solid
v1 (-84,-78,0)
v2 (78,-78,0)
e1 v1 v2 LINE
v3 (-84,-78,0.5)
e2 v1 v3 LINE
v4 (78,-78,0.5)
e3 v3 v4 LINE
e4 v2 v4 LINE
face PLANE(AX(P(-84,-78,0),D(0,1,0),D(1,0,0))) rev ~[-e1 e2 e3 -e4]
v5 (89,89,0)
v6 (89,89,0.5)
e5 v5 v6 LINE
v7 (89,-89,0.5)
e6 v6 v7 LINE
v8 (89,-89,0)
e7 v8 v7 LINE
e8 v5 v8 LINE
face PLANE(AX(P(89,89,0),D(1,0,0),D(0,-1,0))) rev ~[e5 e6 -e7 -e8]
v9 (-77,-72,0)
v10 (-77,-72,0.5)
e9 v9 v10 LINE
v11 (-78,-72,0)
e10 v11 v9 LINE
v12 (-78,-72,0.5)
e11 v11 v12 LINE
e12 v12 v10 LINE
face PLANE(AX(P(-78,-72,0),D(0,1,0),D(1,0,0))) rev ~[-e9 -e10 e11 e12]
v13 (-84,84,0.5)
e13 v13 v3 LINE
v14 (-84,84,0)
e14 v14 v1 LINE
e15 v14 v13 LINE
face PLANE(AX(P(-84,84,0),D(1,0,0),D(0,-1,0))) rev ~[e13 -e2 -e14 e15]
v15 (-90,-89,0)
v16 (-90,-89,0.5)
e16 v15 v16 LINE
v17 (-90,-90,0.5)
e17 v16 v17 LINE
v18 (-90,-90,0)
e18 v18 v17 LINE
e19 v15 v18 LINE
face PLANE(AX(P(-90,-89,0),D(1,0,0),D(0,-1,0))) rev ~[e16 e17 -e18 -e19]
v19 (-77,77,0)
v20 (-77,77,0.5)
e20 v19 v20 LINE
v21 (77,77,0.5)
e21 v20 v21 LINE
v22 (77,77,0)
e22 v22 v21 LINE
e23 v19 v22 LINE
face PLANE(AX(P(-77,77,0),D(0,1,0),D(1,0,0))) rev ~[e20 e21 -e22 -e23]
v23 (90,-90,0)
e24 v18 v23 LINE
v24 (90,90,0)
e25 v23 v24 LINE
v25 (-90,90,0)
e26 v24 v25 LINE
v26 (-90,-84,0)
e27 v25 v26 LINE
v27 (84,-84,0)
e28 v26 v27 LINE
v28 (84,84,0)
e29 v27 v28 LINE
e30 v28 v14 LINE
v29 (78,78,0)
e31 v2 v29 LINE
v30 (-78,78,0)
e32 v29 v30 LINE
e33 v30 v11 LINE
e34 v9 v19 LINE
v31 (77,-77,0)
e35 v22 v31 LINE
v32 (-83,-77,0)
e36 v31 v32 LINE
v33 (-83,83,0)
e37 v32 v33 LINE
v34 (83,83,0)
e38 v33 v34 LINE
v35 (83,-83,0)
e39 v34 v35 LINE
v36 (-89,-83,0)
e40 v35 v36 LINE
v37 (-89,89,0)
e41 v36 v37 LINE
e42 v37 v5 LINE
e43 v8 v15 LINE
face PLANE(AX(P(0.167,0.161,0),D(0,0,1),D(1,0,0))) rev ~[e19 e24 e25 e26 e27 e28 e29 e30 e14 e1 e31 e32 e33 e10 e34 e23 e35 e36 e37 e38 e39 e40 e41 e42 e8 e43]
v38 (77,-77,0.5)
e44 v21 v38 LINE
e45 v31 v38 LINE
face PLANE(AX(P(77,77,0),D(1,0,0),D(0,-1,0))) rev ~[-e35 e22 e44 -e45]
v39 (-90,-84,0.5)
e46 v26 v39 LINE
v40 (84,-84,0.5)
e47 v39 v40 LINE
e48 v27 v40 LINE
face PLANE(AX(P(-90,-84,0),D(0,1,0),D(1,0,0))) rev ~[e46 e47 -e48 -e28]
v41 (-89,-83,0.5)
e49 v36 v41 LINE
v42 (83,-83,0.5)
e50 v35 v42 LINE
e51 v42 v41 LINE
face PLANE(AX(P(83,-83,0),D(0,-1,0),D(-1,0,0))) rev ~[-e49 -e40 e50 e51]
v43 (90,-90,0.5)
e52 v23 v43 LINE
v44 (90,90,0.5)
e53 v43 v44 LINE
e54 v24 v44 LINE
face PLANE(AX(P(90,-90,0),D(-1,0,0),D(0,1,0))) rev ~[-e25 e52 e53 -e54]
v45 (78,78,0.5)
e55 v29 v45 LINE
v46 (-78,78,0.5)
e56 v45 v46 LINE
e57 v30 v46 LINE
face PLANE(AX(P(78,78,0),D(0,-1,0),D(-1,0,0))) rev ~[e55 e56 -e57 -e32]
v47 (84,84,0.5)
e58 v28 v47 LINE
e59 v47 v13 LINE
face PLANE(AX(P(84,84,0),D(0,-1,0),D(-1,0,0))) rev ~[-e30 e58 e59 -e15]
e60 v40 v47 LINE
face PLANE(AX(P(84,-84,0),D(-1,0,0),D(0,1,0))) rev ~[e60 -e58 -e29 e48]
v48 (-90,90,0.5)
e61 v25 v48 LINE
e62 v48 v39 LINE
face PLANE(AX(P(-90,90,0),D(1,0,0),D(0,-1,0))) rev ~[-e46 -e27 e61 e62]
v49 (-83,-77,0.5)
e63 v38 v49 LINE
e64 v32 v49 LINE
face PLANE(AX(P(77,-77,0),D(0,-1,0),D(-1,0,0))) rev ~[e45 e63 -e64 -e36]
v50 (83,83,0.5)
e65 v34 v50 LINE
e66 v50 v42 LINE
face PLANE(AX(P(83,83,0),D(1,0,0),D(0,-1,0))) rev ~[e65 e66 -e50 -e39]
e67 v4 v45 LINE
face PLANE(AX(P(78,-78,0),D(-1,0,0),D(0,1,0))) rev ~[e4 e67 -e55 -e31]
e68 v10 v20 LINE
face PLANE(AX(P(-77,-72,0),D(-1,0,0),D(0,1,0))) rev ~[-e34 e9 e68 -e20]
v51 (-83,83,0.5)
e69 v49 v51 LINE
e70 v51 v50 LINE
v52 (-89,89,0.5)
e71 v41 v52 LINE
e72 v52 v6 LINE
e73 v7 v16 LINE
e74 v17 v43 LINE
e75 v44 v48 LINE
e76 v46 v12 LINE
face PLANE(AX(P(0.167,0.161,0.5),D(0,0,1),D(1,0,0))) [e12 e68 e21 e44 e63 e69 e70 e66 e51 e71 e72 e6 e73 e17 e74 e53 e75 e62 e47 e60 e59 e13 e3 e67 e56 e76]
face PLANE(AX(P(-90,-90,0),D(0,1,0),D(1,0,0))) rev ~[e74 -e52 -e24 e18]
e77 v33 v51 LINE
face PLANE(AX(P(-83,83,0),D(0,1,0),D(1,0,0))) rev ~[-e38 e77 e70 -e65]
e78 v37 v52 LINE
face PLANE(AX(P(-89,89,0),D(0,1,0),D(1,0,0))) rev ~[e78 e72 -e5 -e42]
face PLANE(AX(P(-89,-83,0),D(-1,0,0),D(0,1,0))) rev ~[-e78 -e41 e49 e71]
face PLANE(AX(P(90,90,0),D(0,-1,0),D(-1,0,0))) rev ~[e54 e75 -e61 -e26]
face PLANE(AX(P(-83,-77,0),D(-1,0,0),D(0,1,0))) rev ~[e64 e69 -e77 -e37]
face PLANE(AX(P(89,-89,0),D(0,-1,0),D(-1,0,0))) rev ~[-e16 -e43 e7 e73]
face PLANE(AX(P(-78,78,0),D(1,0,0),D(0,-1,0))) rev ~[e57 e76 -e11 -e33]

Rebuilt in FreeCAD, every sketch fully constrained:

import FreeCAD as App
import Part
import Sketcher

V = App.Vector
Q = App.Units.Quantity


def add_polygon(sketch, points):
    """Adds a closed chain of lines whose ends are joined by coincident constraints."""
    first, n = sketch.GeometryCount, len(points)
    for a, b in zip(points, points[1:] + points[:1]):
        sketch.addGeometry(Part.LineSegment(App.Vector(*a, 0), App.Vector(*b, 0)), False)
    for i in range(n):
        sketch.addConstraint(Sketcher.Constraint("Coincident", first + i, 2, first + (i + 1) % n, 1))

doc = App.newDocument("Part")
body = doc.addObject("PartDesign::Body", "Body")

# Sketch on XY plane
sketch1 = body.newObject("Sketcher::SketchObject", "Sketch")
sketch1.AttachmentSupport = (doc.getObject("XY_Plane"), [""])
sketch1.MapMode = "FlatFace"
add_polygon(sketch1, [(-90, -89), (-90, -90), (90, -90), (90, 90), (-90, 90), (-90, -84), (84, -84), (84, 84), (-84, 84), (-84, -78), (78, -78), (78, 78), (-78, 78), (-78, -72), (-77, -72), (-77, 77), (77, 77), (77, -77), (-83, -77), (-83, 83), (83, 83), (83, -83), (-89, -83), (-89, 89), (89, 89), (89, -89)])  # lines 0-25
sketch1.addConstraint(Sketcher.Constraint("Vertical", 0))
sketch1.addConstraint(Sketcher.Constraint("Horizontal", 1))
sketch1.addConstraint(Sketcher.Constraint("Vertical", 2))
sketch1.addConstraint(Sketcher.Constraint("Horizontal", 3))
sketch1.addConstraint(Sketcher.Constraint("Vertical", 4))
sketch1.addConstraint(Sketcher.Constraint("Horizontal", 5))
sketch1.addConstraint(Sketcher.Constraint("Vertical", 6))
sketch1.addConstraint(Sketcher.Constraint("Horizontal", 7))
sketch1.addConstraint(Sketcher.Constraint("Vertical", 8))
sketch1.addConstraint(Sketcher.Constraint("Horizontal", 9))
sketch1.addConstraint(Sketcher.Constraint("Vertical", 10))
sketch1.addConstraint(Sketcher.Constraint("Horizontal", 11))
sketch1.addConstraint(Sketcher.Constraint("Vertical", 12))
sketch1.addConstraint(Sketcher.Constraint("Horizontal", 13))
sketch1.addConstraint(Sketcher.Constraint("Vertical", 14))
sketch1.addConstraint(Sketcher.Constraint("Horizontal", 15))
sketch1.addConstraint(Sketcher.Constraint("Vertical", 16))
sketch1.addConstraint(Sketcher.Constraint("Horizontal", 17))
sketch1.addConstraint(Sketcher.Constraint("Vertical", 18))
sketch1.addConstraint(Sketcher.Constraint("Horizontal", 19))
sketch1.addConstraint(Sketcher.Constraint("Vertical", 20))
sketch1.addConstraint(Sketcher.Constraint("Horizontal", 21))
sketch1.addConstraint(Sketcher.Constraint("Vertical", 22))
sketch1.addConstraint(Sketcher.Constraint("Horizontal", 23))
sketch1.addConstraint(Sketcher.Constraint("Vertical", 24))
sketch1.addConstraint(Sketcher.Constraint("Horizontal", 25))
sketch1.addConstraint(Sketcher.Constraint("Symmetric", 0, 2, 2, 2, -1, 1))
sketch1.addConstraint(Sketcher.Constraint("Symmetric", 5, 2, 7, 2, -1, 1))
sketch1.addConstraint(Sketcher.Constraint("Symmetric", 9, 2, 11, 2, -1, 1))
sketch1.addConstraint(Sketcher.Constraint("Symmetric", 14, 2, 16, 2, -1, 1))
sketch1.addConstraint(Sketcher.Constraint("Symmetric", 18, 2, 20, 2, -1, 1))
sketch1.addConstraint(Sketcher.Constraint("Symmetric", 22, 2, 24, 2, -1, 1))
sketch1.addConstraint(Sketcher.Constraint("Vertical", 0, 2, 3, 2))
sketch1.addConstraint(Sketcher.Constraint("Equal", 13, 0))
sketch1.addConstraint(Sketcher.Constraint("Equal", 3, 2))
sketch1.addConstraint(Sketcher.Constraint("Equal", 5, 4))
sketch1.addConstraint(Sketcher.Constraint("Equal", 9, 8))
sketch1.addConstraint(Sketcher.Constraint("Equal", 15, 16))
sketch1.addConstraint(Sketcher.Constraint("Equal", 17, 18))
sketch1.addConstraint(Sketcher.Constraint("Equal", 21, 22))
sketch1.addConstraint(Sketcher.Constraint("DistanceX", 1, 1, 1, 2, Q("180 mm")))
sketch1.addConstraint(Sketcher.Constraint("DistanceX", 5, 1, 5, 2, Q("174 mm")))
sketch1.addConstraint(Sketcher.Constraint("DistanceX", 9, 1, 9, 2, Q("162 mm")))
sketch1.addConstraint(Sketcher.Constraint("DistanceX", 13, 1, 13, 2, Q("1 mm")))
sketch1.addConstraint(Sketcher.Constraint("DistanceX", 17, 2, 17, 1, Q("160 mm")))
sketch1.addConstraint(Sketcher.Constraint("DistanceY", 12, 2, 12, 1, Q("150 mm")))
pad1 = body.newObject("PartDesign::Pad", "Pad")
pad1.Profile = sketch1
pad1.Length = 0.5

doc.recompute()
